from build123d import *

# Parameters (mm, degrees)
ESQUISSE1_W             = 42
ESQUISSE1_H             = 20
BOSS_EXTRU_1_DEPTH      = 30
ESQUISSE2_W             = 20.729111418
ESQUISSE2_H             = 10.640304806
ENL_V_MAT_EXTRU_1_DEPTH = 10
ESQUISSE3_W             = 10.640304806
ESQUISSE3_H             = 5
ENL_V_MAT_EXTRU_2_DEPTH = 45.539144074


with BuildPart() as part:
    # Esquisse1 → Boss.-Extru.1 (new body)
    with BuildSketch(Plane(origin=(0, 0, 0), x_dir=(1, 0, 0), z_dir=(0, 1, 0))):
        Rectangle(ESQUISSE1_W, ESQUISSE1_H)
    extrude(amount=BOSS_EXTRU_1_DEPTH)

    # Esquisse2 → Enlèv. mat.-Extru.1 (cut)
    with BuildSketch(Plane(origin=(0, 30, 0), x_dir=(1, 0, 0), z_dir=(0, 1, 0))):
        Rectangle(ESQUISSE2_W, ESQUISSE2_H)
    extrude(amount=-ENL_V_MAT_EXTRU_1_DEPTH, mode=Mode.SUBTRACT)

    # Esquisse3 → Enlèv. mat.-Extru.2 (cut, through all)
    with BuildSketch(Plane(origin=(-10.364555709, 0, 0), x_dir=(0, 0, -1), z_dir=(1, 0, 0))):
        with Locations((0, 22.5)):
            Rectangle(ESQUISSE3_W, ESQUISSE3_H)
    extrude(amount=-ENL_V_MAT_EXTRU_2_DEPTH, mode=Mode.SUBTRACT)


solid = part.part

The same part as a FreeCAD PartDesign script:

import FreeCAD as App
import Part
import Sketcher
from FreeCAD import Vector
Q = App.Units.Quantity


def add_polygon(sketch, points):
    """Adds a closed chain of lines whose ends are joined by coincident constraints."""
    first, n = sketch.GeometryCount, len(points)
    for a, b in zip(points, points[1:] + points[:1]):
        sketch.addGeometry(Part.LineSegment(App.Vector(*a, 0), App.Vector(*b, 0)), False)
    for i in range(n):
        sketch.addConstraint(Sketcher.Constraint("Coincident", first + i, 2, first + (i + 1) % n, 1))

doc = App.newDocument("Part")
params = doc.addObject("Spreadsheet::Sheet", "Params")
for row, (alias, value) in enumerate([
    ("sketch1_width", "42 mm"),
    ("sketch1_height", "20 mm"),
    ("pad1_length", "30 mm"),
    ("pocket1_length", "10 mm"),
    ("sketch3_width", "5 mm"),
], start=1):
    params.set(f"A{row}", alias)
    params.set(f"B{row}", "=" + value)
    params.setAlias(f"B{row}", alias)

body = doc.addObject("PartDesign::Body", "Body")

# Sketch on XZ plane
sketch1 = doc.addObject("Sketcher::SketchObject", "Sketch")
body.addObject(sketch1)
sketch1.AttachmentSupport = (doc.XZ_Plane, [""])
sketch1.MapMode = "FlatFace"
add_polygon(sketch1, [(-21, -10), (-21, 10), (21, 10), (21, -10)])  # lines 0-3
sketch1.addConstraint(Sketcher.Constraint("Vertical", 0))
sketch1.addConstraint(Sketcher.Constraint("Horizontal", 1))
sketch1.addConstraint(Sketcher.Constraint("Vertical", 2))
sketch1.addConstraint(Sketcher.Constraint("Horizontal", 3))
sketch1.addConstraint(Sketcher.Constraint("Symmetric", 0, 2, 2, 2, -1, 1))
sketch1.addConstraint(Sketcher.Constraint("DistanceX", 1, 1, 1, 2, Q("42 mm")))
sketch1.addConstraint(Sketcher.Constraint("DistanceY", 0, 1, 0, 2, Q("20 mm")))
sketch1.setExpression("Constraints[9]", "Params.sketch1_width")
sketch1.setExpression("Constraints[10]", "Params.sketch1_height")
pad1 = doc.addObject("PartDesign::Pad", "Pad")
body.addObject(pad1)
pad1.Profile = sketch1
pad1.setExpression("Length", "Params.pad1_length")
pad1.Reversed = True

# Sketch on XZ plane
sketch2 = doc.addObject("Sketcher::SketchObject", "Sketch001")
body.addObject(sketch2)
sketch2.AttachmentSupport = (doc.XZ_Plane, [""])
sketch2.MapMode = "FlatFace"
sketch2.AttachmentOffset = App.Placement(Vector(0, 0, -30), App.Rotation())
add_polygon(sketch2, [(-10.364556, -5.320152), (-10.364556, 5.320152), (10.364556, 5.320152), (10.364556, -5.320152)])  # lines 0-3
sketch2.addConstraint(Sketcher.Constraint("Vertical", 0))
sketch2.addConstraint(Sketcher.Constraint("Horizontal", 1))
sketch2.addConstraint(Sketcher.Constraint("Vertical", 2))
sketch2.addConstraint(Sketcher.Constraint("Horizontal", 3))
sketch2.addConstraint(Sketcher.Constraint("Symmetric", 0, 2, 2, 2, -1, 1))
sketch2.addConstraint(Sketcher.Constraint("DistanceX", 1, 1, 1, 2, Q("20.729111 mm")))
sketch2.addConstraint(Sketcher.Constraint("DistanceY", 0, 1, 0, 2, Q("10.640305 mm")))
pocket1 = doc.addObject("PartDesign::Pocket", "Pocket")
body.addObject(pocket1)
pocket1.Profile = sketch2
pocket1.setExpression("Length", "Params.pocket1_length")
pocket1.Reversed = True

# Sketch on YZ plane
sketch3 = doc.addObject("Sketcher::SketchObject", "Sketch002")
body.addObject(sketch3)
sketch3.AttachmentSupport = (doc.YZ_Plane, [""])
sketch3.MapMode = "FlatFace"
sketch3.AttachmentOffset = App.Placement(Vector(0, 0, -10.364556), App.Rotation())
add_polygon(sketch3, [(25, 5.320152), (20, 5.320152), (20, -5.320152), (25, -5.320152)])  # lines 0-3
sketch3.addConstraint(Sketcher.Constraint("Horizontal", 0))
sketch3.addConstraint(Sketcher.Constraint("Vertical", 1))
sketch3.addConstraint(Sketcher.Constraint("Horizontal", 2))
sketch3.addConstraint(Sketcher.Constraint("Vertical", 3))
sketch3.addConstraint(Sketcher.Constraint("DistanceX", 0, 2, 0, 1, Q("5 mm")))
sketch3.addConstraint(Sketcher.Constraint("DistanceX", -1, 1, 0, 2, Q("20 mm")))
sketch3.addConstraint(Sketcher.Constraint("DistanceY", 1, 2, 1, 1, Q("10.640305 mm")))
sketch3.addConstraint(Sketcher.Constraint("DistanceY", -1, 1, 0, 2, Q("5.320152 mm")))
sketch3.setExpression("Constraints[8]", "Params.sketch3_width")
pocket2 = doc.addObject("PartDesign::Pocket", "Pocket001")
body.addObject(pocket2)
pocket2.Profile = sketch3
pocket2.Type = "ThroughAll"

doc.recompute()
